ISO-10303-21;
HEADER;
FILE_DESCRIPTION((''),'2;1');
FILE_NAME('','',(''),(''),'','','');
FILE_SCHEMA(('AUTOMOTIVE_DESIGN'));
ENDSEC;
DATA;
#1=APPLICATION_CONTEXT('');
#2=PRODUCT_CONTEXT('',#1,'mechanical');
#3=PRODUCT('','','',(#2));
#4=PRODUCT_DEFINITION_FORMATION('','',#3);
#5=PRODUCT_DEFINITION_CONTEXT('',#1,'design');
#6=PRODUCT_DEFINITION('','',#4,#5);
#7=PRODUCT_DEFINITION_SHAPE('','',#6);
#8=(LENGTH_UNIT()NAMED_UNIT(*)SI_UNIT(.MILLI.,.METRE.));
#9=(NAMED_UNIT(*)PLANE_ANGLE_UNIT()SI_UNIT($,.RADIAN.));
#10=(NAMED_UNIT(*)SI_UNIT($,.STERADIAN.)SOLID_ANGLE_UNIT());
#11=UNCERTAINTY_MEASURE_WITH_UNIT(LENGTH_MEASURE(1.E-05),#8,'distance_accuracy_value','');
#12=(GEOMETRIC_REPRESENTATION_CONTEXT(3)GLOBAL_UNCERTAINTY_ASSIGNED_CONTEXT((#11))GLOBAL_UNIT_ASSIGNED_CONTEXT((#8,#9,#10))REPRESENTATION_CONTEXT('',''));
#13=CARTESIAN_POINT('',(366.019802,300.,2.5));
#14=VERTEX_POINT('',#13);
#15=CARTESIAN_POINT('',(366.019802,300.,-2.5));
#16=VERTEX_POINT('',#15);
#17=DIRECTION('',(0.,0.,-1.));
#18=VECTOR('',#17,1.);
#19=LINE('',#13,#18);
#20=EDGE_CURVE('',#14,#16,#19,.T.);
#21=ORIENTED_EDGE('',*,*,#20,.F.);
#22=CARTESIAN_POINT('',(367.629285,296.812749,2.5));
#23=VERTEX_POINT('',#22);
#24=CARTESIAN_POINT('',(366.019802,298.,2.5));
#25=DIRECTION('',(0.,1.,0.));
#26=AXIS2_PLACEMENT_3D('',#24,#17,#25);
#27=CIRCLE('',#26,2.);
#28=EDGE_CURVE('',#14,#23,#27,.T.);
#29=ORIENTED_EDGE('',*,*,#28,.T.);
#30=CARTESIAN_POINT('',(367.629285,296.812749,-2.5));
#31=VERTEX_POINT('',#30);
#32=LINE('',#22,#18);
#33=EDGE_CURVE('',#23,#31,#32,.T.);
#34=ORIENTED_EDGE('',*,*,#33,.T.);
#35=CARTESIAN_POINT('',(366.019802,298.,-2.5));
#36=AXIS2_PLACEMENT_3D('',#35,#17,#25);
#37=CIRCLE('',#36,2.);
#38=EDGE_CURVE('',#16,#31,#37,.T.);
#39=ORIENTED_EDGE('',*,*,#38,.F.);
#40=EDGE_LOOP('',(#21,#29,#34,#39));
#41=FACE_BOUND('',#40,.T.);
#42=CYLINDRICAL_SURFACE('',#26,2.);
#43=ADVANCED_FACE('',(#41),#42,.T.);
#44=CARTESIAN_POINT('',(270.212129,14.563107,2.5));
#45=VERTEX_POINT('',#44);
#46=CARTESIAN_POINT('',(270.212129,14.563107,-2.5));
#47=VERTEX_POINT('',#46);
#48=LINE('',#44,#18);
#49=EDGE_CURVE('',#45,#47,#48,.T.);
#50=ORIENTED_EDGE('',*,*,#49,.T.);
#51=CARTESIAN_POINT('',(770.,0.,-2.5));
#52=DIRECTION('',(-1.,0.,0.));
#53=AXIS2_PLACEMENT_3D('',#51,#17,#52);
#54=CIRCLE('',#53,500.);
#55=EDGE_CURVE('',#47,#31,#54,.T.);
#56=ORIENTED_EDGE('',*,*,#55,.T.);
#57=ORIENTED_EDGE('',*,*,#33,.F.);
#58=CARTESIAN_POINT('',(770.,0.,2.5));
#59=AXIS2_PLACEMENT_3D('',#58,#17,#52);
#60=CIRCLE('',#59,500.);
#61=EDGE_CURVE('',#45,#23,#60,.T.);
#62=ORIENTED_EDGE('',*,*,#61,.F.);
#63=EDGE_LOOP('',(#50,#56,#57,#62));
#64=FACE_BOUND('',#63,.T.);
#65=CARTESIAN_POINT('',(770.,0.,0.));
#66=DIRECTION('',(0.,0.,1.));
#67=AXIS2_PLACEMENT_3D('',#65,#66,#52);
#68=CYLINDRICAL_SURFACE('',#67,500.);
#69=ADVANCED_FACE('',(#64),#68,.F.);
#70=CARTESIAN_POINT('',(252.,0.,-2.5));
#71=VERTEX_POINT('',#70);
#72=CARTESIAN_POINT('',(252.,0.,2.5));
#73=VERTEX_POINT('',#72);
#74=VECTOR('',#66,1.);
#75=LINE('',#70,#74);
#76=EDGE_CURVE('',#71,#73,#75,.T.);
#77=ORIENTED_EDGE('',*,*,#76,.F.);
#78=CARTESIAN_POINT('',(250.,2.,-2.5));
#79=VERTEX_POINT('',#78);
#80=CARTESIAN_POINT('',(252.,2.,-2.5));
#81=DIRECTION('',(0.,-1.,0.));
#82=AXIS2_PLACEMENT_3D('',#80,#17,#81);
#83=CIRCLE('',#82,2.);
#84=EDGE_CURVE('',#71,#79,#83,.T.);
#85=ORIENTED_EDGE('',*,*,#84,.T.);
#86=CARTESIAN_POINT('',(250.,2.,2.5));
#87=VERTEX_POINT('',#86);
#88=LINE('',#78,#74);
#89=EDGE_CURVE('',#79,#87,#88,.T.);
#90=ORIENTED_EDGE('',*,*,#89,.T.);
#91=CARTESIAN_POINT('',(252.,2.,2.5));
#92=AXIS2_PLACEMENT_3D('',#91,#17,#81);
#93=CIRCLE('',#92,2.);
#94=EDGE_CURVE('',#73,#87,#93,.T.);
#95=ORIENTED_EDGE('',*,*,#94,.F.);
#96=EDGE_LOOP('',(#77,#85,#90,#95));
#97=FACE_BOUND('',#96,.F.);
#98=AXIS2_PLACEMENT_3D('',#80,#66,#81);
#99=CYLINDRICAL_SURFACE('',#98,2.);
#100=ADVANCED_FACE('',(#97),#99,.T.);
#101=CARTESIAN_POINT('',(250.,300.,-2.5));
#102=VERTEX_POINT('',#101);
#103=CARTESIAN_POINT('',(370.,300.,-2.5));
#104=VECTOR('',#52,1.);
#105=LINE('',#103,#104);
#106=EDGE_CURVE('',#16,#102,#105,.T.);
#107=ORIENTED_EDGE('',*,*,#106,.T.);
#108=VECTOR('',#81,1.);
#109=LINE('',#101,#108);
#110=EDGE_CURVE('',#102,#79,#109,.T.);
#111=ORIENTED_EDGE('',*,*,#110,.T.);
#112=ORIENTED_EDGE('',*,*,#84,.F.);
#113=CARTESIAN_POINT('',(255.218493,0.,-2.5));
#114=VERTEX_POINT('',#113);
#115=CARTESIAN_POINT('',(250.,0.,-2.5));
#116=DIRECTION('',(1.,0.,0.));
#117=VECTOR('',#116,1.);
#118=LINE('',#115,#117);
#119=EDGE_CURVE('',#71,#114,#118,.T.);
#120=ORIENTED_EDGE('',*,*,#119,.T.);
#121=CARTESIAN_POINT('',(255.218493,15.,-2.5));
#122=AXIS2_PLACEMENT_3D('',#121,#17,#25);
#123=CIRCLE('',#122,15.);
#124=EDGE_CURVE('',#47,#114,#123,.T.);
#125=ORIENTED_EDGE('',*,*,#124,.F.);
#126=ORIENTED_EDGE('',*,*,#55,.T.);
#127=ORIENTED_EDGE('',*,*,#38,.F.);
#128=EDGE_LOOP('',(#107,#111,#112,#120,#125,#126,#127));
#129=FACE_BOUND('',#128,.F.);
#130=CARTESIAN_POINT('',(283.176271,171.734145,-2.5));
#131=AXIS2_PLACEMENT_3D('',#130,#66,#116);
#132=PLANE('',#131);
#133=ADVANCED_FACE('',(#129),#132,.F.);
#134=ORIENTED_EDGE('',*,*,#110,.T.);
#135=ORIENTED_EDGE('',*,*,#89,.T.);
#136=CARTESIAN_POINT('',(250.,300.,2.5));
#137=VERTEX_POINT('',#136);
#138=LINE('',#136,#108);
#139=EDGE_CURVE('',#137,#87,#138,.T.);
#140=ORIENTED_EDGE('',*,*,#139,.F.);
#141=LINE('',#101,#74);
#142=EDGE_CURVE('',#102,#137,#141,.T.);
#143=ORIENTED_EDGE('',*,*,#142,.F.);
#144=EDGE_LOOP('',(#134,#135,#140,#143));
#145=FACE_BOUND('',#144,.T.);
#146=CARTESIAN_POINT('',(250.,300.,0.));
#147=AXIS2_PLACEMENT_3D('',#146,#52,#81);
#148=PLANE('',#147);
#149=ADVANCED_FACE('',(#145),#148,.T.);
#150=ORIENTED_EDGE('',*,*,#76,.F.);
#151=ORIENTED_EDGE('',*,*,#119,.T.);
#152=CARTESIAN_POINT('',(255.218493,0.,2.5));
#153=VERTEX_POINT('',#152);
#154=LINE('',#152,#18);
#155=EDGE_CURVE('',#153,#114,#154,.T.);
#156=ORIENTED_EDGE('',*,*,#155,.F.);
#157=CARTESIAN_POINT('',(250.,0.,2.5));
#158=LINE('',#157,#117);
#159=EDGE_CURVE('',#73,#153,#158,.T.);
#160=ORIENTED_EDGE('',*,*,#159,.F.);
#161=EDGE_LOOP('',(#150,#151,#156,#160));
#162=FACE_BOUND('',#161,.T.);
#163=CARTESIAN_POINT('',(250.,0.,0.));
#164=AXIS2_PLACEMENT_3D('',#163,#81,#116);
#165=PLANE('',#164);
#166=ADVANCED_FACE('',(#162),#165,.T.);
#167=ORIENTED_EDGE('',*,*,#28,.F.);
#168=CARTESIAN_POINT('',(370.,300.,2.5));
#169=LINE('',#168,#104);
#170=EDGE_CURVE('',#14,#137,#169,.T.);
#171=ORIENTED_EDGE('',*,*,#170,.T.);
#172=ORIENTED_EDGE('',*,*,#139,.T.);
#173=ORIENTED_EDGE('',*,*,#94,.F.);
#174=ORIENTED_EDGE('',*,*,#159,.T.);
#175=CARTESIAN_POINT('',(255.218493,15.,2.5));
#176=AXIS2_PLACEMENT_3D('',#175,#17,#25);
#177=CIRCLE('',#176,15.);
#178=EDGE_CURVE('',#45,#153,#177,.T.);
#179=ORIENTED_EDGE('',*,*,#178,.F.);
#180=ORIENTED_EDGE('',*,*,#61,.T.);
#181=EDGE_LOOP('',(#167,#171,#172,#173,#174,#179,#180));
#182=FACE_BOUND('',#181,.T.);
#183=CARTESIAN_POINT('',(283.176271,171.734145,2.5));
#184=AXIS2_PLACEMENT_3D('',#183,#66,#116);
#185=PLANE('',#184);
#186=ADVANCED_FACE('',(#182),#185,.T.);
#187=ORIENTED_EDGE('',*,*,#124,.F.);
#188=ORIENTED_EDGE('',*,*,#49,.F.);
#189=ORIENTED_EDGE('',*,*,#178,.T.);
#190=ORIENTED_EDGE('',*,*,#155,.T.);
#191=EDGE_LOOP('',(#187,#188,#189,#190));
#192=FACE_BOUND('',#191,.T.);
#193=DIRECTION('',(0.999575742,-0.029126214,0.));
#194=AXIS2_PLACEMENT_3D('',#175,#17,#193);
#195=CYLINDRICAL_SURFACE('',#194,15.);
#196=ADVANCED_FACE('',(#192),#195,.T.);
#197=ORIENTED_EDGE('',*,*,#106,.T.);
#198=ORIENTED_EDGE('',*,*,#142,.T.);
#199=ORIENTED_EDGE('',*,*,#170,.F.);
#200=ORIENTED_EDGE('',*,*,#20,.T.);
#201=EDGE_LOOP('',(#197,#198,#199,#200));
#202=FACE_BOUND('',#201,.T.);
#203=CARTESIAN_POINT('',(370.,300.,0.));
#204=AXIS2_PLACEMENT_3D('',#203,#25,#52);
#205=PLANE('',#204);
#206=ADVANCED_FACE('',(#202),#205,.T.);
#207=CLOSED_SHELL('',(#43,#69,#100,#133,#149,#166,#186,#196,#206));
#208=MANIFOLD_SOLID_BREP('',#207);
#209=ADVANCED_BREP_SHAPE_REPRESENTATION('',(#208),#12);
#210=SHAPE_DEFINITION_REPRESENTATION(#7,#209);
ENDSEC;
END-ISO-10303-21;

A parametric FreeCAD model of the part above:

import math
import FreeCAD as App
import Part
import Sketcher


def edges_at(feature, points):
    """Names of the edges that pass closest to the given points."""
    edges = feature.Shape.Edges
    near = lambda p: min(range(len(edges)), key=lambda i: edges[i].distToShape(Part.Vertex(*p))[0])
    return sorted({f"Edge{near(p) + 1}" for p in points})

doc = App.newDocument("Part")
body = doc.addObject("PartDesign::Body", "Body")

# Sketch on XY plane
sketch1 = doc.addObject("Sketcher::SketchObject", "Sketch")
body.addObject(sketch1)
sketch1.AttachmentSupport = (doc.XY_Plane, [""])
sketch1.MapMode = "FlatFace"
sketch1.addGeometry(Part.LineSegment(App.Vector(370, 300, 0), App.Vector(250, 300, 0)), False)
sketch1.addGeometry(Part.LineSegment(App.Vector(250, 300, 0), App.Vector(250, 0, 0)), False)
sketch1.addGeometry(Part.LineSegment(App.Vector(250, 0, 0), App.Vector(270, 0, 0)), False)
sketch1.addGeometry(Part.ArcOfCircle(Part.Circle(App.Vector(770, 0, 0), App.Vector(0, 0, 1), 500), math.radians(143), math.radians(180)), False)
sketch1.addConstraint(Sketcher.Constraint("Coincident", 0, 2, 1, 1))
sketch1.addConstraint(Sketcher.Constraint("Coincident", 1, 2, 2, 1))
sketch1.addConstraint(Sketcher.Constraint("Coincident", 2, 2, 3, 2))
sketch1.addConstraint(Sketcher.Constraint("Coincident", 3, 1, 0, 1))
sketch1.addConstraint(Sketcher.Constraint("Horizontal", 0))
sketch1.addConstraint(Sketcher.Constraint("Vertical", 1))
sketch1.addConstraint(Sketcher.Constraint("Horizontal", 2))
sketch1.addConstraint(Sketcher.Constraint("PointOnObject", 3, 3, -1))
sketch1.addConstraint(Sketcher.Constraint("PointOnObject", 1, 2, -1))
sketch1.addConstraint(Sketcher.Constraint("Radius", 3, 500.0))
sketch1.addConstraint(Sketcher.Constraint("DistanceX", 0, 2, 0, 1, 120.0))
sketch1.addConstraint(Sketcher.Constraint("DistanceX", 2, 1, 2, 2, 20.0))
sketch1.addConstraint(Sketcher.Constraint("DistanceX", -1, 1, 3, 3, 770.0))
pad1 = doc.addObject("PartDesign::Pad", "Pad")
body.addObject(pad1)
pad1.Profile = sketch1
pad1.Length = 5
pad1.Midplane = True
doc.recompute()

fillet = doc.addObject("PartDesign::Fillet", "Fillet")
body.addObject(fillet)
fillet.Base = (pad1, edges_at(pad1, [(250, 0, 0), (370, 300, 0)]))
fillet.Radius = 2
doc.recompute()

fillet2 = doc.addObject("PartDesign::Fillet", "Fillet001")
body.addObject(fillet2)
fillet2.Base = (fillet, edges_at(fillet, [(270, 0, 0)]))
fillet2.Radius = 15

doc.recompute()
